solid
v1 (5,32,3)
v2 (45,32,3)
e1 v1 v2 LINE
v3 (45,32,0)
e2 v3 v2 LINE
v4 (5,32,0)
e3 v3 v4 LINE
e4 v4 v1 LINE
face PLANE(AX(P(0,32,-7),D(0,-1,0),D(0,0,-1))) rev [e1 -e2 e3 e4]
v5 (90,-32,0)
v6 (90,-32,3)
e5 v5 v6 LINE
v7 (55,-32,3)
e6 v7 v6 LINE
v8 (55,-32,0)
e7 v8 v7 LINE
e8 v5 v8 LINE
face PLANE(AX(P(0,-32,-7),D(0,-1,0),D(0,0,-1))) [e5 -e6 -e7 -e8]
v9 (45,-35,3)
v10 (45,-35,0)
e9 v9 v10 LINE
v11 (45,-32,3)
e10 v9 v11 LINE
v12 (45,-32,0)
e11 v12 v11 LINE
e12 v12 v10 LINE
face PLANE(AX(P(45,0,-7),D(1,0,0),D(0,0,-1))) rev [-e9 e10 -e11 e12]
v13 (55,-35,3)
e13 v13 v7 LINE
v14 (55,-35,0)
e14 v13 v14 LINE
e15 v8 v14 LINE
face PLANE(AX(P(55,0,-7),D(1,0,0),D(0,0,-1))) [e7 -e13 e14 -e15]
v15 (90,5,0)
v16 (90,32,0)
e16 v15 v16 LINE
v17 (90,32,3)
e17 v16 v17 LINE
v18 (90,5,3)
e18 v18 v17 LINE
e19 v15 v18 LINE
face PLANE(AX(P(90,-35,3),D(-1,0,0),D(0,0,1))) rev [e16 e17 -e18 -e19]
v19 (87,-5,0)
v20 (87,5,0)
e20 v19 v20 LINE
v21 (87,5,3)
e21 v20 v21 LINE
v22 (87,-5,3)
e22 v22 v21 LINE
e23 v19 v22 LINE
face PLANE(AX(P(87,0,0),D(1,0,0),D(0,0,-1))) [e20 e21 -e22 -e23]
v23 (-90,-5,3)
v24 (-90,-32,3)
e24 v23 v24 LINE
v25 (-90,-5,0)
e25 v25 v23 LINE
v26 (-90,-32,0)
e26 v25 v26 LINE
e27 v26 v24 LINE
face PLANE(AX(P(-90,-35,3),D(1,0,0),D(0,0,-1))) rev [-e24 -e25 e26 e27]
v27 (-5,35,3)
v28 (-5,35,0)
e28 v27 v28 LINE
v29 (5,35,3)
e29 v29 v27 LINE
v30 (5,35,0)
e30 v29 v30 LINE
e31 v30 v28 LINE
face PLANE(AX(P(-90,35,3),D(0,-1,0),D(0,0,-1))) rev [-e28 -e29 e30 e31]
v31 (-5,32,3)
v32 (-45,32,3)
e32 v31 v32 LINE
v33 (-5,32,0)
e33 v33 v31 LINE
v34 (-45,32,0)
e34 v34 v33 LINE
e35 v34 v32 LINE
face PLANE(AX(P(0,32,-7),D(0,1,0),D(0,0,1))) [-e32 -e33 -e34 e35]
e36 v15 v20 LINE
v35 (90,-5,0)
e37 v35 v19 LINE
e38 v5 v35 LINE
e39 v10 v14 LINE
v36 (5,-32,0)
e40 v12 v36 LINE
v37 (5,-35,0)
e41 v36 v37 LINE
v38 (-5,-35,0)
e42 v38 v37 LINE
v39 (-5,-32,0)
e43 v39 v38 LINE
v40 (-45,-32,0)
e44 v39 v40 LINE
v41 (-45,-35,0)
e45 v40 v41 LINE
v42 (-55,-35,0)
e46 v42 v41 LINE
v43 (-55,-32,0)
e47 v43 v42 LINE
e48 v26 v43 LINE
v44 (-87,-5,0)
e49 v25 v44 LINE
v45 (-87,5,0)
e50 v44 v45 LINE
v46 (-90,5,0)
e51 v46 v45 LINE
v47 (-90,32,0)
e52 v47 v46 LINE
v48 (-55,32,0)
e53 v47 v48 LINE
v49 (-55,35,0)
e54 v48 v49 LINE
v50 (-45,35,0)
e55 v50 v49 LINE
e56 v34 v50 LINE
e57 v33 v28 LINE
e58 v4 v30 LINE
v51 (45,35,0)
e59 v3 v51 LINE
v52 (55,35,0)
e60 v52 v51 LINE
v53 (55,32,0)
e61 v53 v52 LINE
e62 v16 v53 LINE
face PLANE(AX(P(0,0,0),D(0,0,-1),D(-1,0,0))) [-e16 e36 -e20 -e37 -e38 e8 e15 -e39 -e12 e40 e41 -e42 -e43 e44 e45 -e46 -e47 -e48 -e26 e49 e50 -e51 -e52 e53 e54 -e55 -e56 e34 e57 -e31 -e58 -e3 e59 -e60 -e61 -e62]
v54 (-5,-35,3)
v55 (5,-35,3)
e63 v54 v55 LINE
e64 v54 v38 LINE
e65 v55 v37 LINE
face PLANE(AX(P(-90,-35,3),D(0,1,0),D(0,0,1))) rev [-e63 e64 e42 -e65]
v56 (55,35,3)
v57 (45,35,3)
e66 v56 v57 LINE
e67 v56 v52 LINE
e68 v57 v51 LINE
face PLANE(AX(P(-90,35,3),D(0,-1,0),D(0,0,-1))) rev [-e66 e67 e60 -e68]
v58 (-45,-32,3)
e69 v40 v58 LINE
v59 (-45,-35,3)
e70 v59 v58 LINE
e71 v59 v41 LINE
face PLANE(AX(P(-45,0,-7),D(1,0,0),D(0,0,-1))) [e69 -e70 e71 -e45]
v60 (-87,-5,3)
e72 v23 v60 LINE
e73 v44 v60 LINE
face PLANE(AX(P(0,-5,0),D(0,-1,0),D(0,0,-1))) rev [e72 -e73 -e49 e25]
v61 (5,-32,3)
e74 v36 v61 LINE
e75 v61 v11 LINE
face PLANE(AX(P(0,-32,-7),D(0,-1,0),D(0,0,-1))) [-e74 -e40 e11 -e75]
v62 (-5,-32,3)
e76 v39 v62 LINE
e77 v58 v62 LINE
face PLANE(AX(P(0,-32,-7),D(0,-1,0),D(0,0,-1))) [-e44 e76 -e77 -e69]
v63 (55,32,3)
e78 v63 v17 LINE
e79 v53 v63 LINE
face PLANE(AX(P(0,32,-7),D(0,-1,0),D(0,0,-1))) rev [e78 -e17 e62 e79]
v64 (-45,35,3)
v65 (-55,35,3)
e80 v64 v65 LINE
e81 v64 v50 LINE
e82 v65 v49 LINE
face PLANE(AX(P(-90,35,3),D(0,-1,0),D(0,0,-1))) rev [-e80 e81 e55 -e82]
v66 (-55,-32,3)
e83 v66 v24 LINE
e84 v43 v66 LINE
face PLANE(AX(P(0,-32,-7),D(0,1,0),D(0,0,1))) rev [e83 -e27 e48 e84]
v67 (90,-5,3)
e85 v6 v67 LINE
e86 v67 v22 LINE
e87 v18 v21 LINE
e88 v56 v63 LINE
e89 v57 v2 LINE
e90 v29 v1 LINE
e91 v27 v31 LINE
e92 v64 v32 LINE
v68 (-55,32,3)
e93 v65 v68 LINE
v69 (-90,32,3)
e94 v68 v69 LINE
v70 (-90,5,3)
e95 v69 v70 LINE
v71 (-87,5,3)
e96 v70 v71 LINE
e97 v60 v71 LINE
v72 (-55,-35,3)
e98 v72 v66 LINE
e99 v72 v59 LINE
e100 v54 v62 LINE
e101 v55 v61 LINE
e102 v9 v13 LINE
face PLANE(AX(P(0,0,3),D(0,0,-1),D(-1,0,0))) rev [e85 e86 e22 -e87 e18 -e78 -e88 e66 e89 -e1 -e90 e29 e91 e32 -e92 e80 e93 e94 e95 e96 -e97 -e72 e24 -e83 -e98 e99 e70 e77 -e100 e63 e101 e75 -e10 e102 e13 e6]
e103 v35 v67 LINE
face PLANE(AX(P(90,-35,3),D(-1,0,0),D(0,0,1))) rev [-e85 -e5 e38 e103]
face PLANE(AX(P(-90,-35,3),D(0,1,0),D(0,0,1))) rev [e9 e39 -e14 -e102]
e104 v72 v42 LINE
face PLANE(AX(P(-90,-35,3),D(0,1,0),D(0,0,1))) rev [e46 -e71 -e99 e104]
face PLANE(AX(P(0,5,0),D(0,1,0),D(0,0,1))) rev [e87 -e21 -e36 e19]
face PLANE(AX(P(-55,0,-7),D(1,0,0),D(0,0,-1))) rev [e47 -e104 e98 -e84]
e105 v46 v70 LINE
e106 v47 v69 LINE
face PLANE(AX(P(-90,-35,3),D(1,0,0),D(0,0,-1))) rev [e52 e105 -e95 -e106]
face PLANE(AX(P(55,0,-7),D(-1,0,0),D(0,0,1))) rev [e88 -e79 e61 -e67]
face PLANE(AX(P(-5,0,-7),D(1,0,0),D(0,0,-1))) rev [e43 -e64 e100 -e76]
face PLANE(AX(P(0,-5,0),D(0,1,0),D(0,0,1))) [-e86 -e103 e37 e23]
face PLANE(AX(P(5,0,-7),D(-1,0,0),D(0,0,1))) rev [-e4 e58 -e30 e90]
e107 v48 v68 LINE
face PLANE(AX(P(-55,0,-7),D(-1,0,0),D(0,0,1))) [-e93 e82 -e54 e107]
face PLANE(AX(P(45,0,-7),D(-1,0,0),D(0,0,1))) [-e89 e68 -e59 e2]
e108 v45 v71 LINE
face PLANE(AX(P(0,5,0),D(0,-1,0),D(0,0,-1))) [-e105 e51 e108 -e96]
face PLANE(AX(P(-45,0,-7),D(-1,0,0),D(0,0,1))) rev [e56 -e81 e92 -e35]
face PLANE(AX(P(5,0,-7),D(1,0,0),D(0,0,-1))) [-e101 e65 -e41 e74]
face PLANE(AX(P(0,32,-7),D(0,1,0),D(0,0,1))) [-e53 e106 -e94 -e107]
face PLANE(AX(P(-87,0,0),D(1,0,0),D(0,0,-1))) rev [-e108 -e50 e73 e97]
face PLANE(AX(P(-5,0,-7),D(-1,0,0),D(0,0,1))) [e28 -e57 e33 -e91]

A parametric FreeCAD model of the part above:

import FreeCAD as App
import Part
import Sketcher

V = App.Vector

doc = App.newDocument("Part")
params = doc.addObject("Spreadsheet::Sheet", "Params")
for row, (alias, value) in enumerate([
    ("sketch1_width", "180 mm"),
    ("sketch1_height", "70 mm"),
    ("pad1_length", "3 mm"),
    ("sketch2_width", "3 mm"),
    ("sketch2_height", "10 mm"),
    ("pocket1_length", "3 mm"),
    ("sketch3_width", "35 mm"),
    ("sketch3_width2", "40 mm"),
    ("sketch3_height", "3 mm"),
    ("pocket2_length", "10 mm"),
], start=1):
    params.set(f"A{row}", alias)
    params.set(f"B{row}", "=" + value)
    params.setAlias(f"B{row}", alias)

body = doc.addObject("PartDesign::Body", "Body")

sketch1 = body.newObject("Sketcher::SketchObject", "Sketch")
sketch1.AttachmentSupport = (doc.getObject("XY_Plane"), [""])
sketch1.MapMode = "FlatFace"
sketch1.addGeometry([
    Part.LineSegment(V(-90, 35, 0), V(-90, -35, 0)),
    Part.LineSegment(V(-90, -35, 0), V(90, -35, 0)),
    Part.LineSegment(V(90, -35, 0), V(90, 35, 0)),
    Part.LineSegment(V(90, 35, 0), V(-90, 35, 0)),
], False)
sketch1.addConstraint([
    Sketcher.Constraint("Coincident", 0, 2, 1, 1),
    Sketcher.Constraint("Coincident", 1, 2, 2, 1),
    Sketcher.Constraint("Coincident", 2, 2, 3, 1),
    Sketcher.Constraint("Coincident", 3, 2, 0, 1),
    Sketcher.Constraint("Vertical", 0),
    Sketcher.Constraint("Horizontal", 1),
    Sketcher.Constraint("Vertical", 2),
    Sketcher.Constraint("Horizontal", 3),
    Sketcher.Constraint("Symmetric", 0, 2, 2, 2, -1, 1),
    Sketcher.Constraint("DistanceX", 1, 1, 1, 2, 180.0),
    Sketcher.Constraint("DistanceY", 0, 2, 0, 1, 70.0),
])
sketch1.setExpression("Constraints[9]", "Params.sketch1_width")
sketch1.setExpression("Constraints[10]", "Params.sketch1_height")
pad1 = body.newObject("PartDesign::Pad", "Pad")
pad1.Profile = sketch1
pad1.setExpression("Length", "Params.pad1_length")

sketch2 = body.newObject("Sketcher::SketchObject", "Sketch001")
sketch2.AttachmentSupport = (doc.getObject("XY_Plane"), [""])
sketch2.MapMode = "FlatFace"
sketch2.AttachmentOffset = App.Placement(V(0, 0, 3), App.Rotation())
sketch2.addGeometry([
    Part.LineSegment(V(-90, 5, 0), V(-90, -5, 0)),
    Part.LineSegment(V(-90, -5, 0), V(-87, -5, 0)),
    Part.LineSegment(V(-87, -5, 0), V(-87, 5, 0)),
    Part.LineSegment(V(-87, 5, 0), V(-90, 5, 0)),
    Part.LineSegment(V(87, 5, 0), V(87, -5, 0)),
    Part.LineSegment(V(87, -5, 0), V(90, -5, 0)),
    Part.LineSegment(V(90, -5, 0), V(90, 5, 0)),
    Part.LineSegment(V(90, 5, 0), V(87, 5, 0)),
], False)
sketch2.addConstraint([
    Sketcher.Constraint("Coincident", 0, 2, 1, 1),
    Sketcher.Constraint("Coincident", 1, 2, 2, 1),
    Sketcher.Constraint("Coincident", 2, 2, 3, 1),
    Sketcher.Constraint("Coincident", 3, 2, 0, 1),
    Sketcher.Constraint("Coincident", 4, 2, 5, 1),
    Sketcher.Constraint("Coincident", 5, 2, 6, 1),
    Sketcher.Constraint("Coincident", 6, 2, 7, 1),
    Sketcher.Constraint("Coincident", 7, 2, 4, 1),
    Sketcher.Constraint("Vertical", 0),
    Sketcher.Constraint("Horizontal", 1),
    Sketcher.Constraint("Vertical", 2),
    Sketcher.Constraint("Horizontal", 3),
    Sketcher.Constraint("Vertical", 4),
    Sketcher.Constraint("Horizontal", 5),
    Sketcher.Constraint("Vertical", 6),
    Sketcher.Constraint("Horizontal", 7),
    Sketcher.Constraint("Symmetric", 2, 2, 4, 2, -1, 1),
    Sketcher.Constraint("Symmetric", 0, 2, 6, 2, -1, 1),
    Sketcher.Constraint("Horizontal", 1, 2, 4, 2),
    Sketcher.Constraint("DistanceX", 1, 1, 1, 2, 3.0),
    Sketcher.Constraint("DistanceY", 0, 2, 0, 1, 10.0),
    Sketcher.Constraint("DistanceX", 0, 2, -1, 1, 90.0),
])
sketch2.setExpression("Constraints[19]", "Params.sketch2_width")
sketch2.setExpression("Constraints[20]", "Params.sketch2_height")
pocket1 = body.newObject("PartDesign::Pocket", "Pocket")
pocket1.Profile = sketch2
pocket1.setExpression("Length", "Params.pocket1_length")

sketch3 = body.newObject("Sketcher::SketchObject", "Sketch002")
sketch3.AttachmentSupport = (doc.getObject("XY_Plane"), [""])
sketch3.MapMode = "FlatFace"
sketch3.AttachmentOffset = App.Placement(V(0, 0, 3), App.Rotation())
sketch3.addGeometry([
    Part.LineSegment(V(-90, 35, 0), V(-90, 32, 0)),
    Part.LineSegment(V(-90, 32, 0), V(-55, 32, 0)),
    Part.LineSegment(V(-55, 32, 0), V(-55, 35, 0)),
    Part.LineSegment(V(-55, 35, 0), V(-90, 35, 0)),
    Part.LineSegment(V(-45, 35, 0), V(-45, 32, 0)),
    Part.LineSegment(V(-45, 32, 0), V(-5, 32, 0)),
    Part.LineSegment(V(-5, 32, 0), V(-5, 35, 0)),
    Part.LineSegment(V(-5, 35, 0), V(-45, 35, 0)),
    Part.LineSegment(V(5, 35, 0), V(5, 32, 0)),
    Part.LineSegment(V(5, 32, 0), V(45, 32, 0)),
    Part.LineSegment(V(45, 32, 0), V(45, 35, 0)),
    Part.LineSegment(V(45, 35, 0), V(5, 35, 0)),
    Part.LineSegment(V(55, 35, 0), V(55, 32, 0)),
    Part.LineSegment(V(55, 32, 0), V(90, 32, 0)),
    Part.LineSegment(V(90, 32, 0), V(90, 35, 0)),
    Part.LineSegment(V(90, 35, 0), V(55, 35, 0)),
    Part.LineSegment(V(55, -32, 0), V(55, -35, 0)),
    Part.LineSegment(V(55, -35, 0), V(90, -35, 0)),
    Part.LineSegment(V(90, -35, 0), V(90, -32, 0)),
    Part.LineSegment(V(90, -32, 0), V(55, -32, 0)),
    Part.LineSegment(V(5, -32, 0), V(5, -35, 0)),
    Part.LineSegment(V(5, -35, 0), V(45, -35, 0)),
    Part.LineSegment(V(45, -35, 0), V(45, -32, 0)),
    Part.LineSegment(V(45, -32, 0), V(5, -32, 0)),
    Part.LineSegment(V(-45, -32, 0), V(-45, -35, 0)),
    Part.LineSegment(V(-45, -35, 0), V(-5, -35, 0)),
    Part.LineSegment(V(-5, -35, 0), V(-5, -32, 0)),
    Part.LineSegment(V(-5, -32, 0), V(-45, -32, 0)),
    Part.LineSegment(V(-90, -32, 0), V(-90, -35, 0)),
    Part.LineSegment(V(-90, -35, 0), V(-55, -35, 0)),
    Part.LineSegment(V(-55, -35, 0), V(-55, -32, 0)),
    Part.LineSegment(V(-55, -32, 0), V(-90, -32, 0)),
], False)
sketch3.addConstraint([
    Sketcher.Constraint("Coincident", 0, 2, 1, 1),
    Sketcher.Constraint("Coincident", 1, 2, 2, 1),
    Sketcher.Constraint("Coincident", 2, 2, 3, 1),
    Sketcher.Constraint("Coincident", 3, 2, 0, 1),
    Sketcher.Constraint("Coincident", 4, 2, 5, 1),
    Sketcher.Constraint("Coincident", 5, 2, 6, 1),
    Sketcher.Constraint("Coincident", 6, 2, 7, 1),
    Sketcher.Constraint("Coincident", 7, 2, 4, 1),
    Sketcher.Constraint("Coincident", 8, 2, 9, 1),
    Sketcher.Constraint("Coincident", 9, 2, 10, 1),
    Sketcher.Constraint("Coincident", 10, 2, 11, 1),
    Sketcher.Constraint("Coincident", 11, 2, 8, 1),
    Sketcher.Constraint("Coincident", 12, 2, 13, 1),
    Sketcher.Constraint("Coincident", 13, 2, 14, 1),
    Sketcher.Constraint("Coincident", 14, 2, 15, 1),
    Sketcher.Constraint("Coincident", 15, 2, 12, 1),
    Sketcher.Constraint("Coincident", 16, 2, 17, 1),
    Sketcher.Constraint("Coincident", 17, 2, 18, 1),
    Sketcher.Constraint("Coincident", 18, 2, 19, 1),
    Sketcher.Constraint("Coincident", 19, 2, 16, 1),
    Sketcher.Constraint("Coincident", 20, 2, 21, 1),
    Sketcher.Constraint("Coincident", 21, 2, 22, 1),
    Sketcher.Constraint("Coincident", 22, 2, 23, 1),
    Sketcher.Constraint("Coincident", 23, 2, 20, 1),
    Sketcher.Constraint("Coincident", 24, 2, 25, 1),
    Sketcher.Constraint("Coincident", 25, 2, 26, 1),
    Sketcher.Constraint("Coincident", 26, 2, 27, 1),
    Sketcher.Constraint("Coincident", 27, 2, 24, 1),
    Sketcher.Constraint("Coincident", 28, 2, 29, 1),
    Sketcher.Constraint("Coincident", 29, 2, 30, 1),
    Sketcher.Constraint("Coincident", 30, 2, 31, 1),
    Sketcher.Constraint("Coincident", 31, 2, 28, 1),
    Sketcher.Constraint("Vertical", 0),
    Sketcher.Constraint("Horizontal", 1),
    Sketcher.Constraint("Vertical", 2),
    Sketcher.Constraint("Horizontal", 3),
    Sketcher.Constraint("Vertical", 4),
    Sketcher.Constraint("Horizontal", 5),
    Sketcher.Constraint("Vertical", 6),
    Sketcher.Constraint("Horizontal", 7),
    Sketcher.Constraint("Vertical", 8),
    Sketcher.Constraint("Horizontal", 9),
    Sketcher.Constraint("Vertical", 10),
    Sketcher.Constraint("Horizontal", 11),
    Sketcher.Constraint("Vertical", 12),
    Sketcher.Constraint("Horizontal", 13),
    Sketcher.Constraint("Vertical", 14),
    Sketcher.Constraint("Horizontal", 15),
    Sketcher.Constraint("Vertical", 16),
    Sketcher.Constraint("Horizontal", 17),
    Sketcher.Constraint("Vertical", 18),
    Sketcher.Constraint("Horizontal", 19),
    Sketcher.Constraint("Vertical", 20),
    Sketcher.Constraint("Horizontal", 21),
    Sketcher.Constraint("Vertical", 22),
    Sketcher.Constraint("Horizontal", 23),
    Sketcher.Constraint("Vertical", 24),
    Sketcher.Constraint("Horizontal", 25),
    Sketcher.Constraint("Vertical", 26),
    Sketcher.Constraint("Horizontal", 27),
    Sketcher.Constraint("Vertical", 28),
    Sketcher.Constraint("Horizontal", 29),
    Sketcher.Constraint("Vertical", 30),
    Sketcher.Constraint("Horizontal", 31),
    Sketcher.Constraint("Symmetric", 2, 2, 16, 2, -1, 1),
    Sketcher.Constraint("Symmetric", 0, 2, 18, 2, -1, 1),
    Sketcher.Constraint("Symmetric", 6, 2, 20, 2, -1, 1),
    Sketcher.Constraint("Symmetric", 4, 2, 22, 2, -1, 1),
    Sketcher.Constraint("Symmetric", 10, 2, 24, 2, -1, 1),
    Sketcher.Constraint("Symmetric", 8, 2, 26, 2, -1, 1),
    Sketcher.Constraint("Symmetric", 14, 2, 28, 2, -1, 1),
    Sketcher.Constraint("Symmetric", 12, 2, 30, 2, -1, 1),
    Sketcher.Constraint("Symmetric", 5, 2, 8, 2, -2),
    Sketcher.Constraint("Symmetric", 7, 2, 10, 2, -2),
    Sketcher.Constraint("Symmetric", 1, 2, 12, 2, -2),
    Sketcher.Constraint("Symmetric", 3, 2, 14, 2, -2),
    Sketcher.Constraint("Horizontal", 1, 2, 4, 2),
    Sketcher.Constraint("Horizontal", 3, 2, 6, 2),
    Sketcher.Constraint("DistanceX", 1, 1, 1, 2, 35.0),
    Sketcher.Constraint("DistanceX", 5, 1, 5, 2, 40.0),
    Sketcher.Constraint("DistanceY", 0, 2, 0, 1, 3.0),
    Sketcher.Constraint("DistanceX", 0, 2, -1, 1, 90.0),
    Sketcher.Constraint("DistanceY", -1, 1, 0, 2, 32.0),
    Sketcher.Constraint("DistanceX", 4, 2, -1, 1, 45.0),
])
sketch3.setExpression("Constraints[78]", "Params.sketch3_width")
sketch3.setExpression("Constraints[79]", "Params.sketch3_width2")
sketch3.setExpression("Constraints[80]", "Params.sketch3_height")
pocket2 = body.newObject("PartDesign::Pocket", "Pocket001")
pocket2.Profile = sketch3
pocket2.setExpression("Length", "Params.pocket2_length")

doc.recompute()
